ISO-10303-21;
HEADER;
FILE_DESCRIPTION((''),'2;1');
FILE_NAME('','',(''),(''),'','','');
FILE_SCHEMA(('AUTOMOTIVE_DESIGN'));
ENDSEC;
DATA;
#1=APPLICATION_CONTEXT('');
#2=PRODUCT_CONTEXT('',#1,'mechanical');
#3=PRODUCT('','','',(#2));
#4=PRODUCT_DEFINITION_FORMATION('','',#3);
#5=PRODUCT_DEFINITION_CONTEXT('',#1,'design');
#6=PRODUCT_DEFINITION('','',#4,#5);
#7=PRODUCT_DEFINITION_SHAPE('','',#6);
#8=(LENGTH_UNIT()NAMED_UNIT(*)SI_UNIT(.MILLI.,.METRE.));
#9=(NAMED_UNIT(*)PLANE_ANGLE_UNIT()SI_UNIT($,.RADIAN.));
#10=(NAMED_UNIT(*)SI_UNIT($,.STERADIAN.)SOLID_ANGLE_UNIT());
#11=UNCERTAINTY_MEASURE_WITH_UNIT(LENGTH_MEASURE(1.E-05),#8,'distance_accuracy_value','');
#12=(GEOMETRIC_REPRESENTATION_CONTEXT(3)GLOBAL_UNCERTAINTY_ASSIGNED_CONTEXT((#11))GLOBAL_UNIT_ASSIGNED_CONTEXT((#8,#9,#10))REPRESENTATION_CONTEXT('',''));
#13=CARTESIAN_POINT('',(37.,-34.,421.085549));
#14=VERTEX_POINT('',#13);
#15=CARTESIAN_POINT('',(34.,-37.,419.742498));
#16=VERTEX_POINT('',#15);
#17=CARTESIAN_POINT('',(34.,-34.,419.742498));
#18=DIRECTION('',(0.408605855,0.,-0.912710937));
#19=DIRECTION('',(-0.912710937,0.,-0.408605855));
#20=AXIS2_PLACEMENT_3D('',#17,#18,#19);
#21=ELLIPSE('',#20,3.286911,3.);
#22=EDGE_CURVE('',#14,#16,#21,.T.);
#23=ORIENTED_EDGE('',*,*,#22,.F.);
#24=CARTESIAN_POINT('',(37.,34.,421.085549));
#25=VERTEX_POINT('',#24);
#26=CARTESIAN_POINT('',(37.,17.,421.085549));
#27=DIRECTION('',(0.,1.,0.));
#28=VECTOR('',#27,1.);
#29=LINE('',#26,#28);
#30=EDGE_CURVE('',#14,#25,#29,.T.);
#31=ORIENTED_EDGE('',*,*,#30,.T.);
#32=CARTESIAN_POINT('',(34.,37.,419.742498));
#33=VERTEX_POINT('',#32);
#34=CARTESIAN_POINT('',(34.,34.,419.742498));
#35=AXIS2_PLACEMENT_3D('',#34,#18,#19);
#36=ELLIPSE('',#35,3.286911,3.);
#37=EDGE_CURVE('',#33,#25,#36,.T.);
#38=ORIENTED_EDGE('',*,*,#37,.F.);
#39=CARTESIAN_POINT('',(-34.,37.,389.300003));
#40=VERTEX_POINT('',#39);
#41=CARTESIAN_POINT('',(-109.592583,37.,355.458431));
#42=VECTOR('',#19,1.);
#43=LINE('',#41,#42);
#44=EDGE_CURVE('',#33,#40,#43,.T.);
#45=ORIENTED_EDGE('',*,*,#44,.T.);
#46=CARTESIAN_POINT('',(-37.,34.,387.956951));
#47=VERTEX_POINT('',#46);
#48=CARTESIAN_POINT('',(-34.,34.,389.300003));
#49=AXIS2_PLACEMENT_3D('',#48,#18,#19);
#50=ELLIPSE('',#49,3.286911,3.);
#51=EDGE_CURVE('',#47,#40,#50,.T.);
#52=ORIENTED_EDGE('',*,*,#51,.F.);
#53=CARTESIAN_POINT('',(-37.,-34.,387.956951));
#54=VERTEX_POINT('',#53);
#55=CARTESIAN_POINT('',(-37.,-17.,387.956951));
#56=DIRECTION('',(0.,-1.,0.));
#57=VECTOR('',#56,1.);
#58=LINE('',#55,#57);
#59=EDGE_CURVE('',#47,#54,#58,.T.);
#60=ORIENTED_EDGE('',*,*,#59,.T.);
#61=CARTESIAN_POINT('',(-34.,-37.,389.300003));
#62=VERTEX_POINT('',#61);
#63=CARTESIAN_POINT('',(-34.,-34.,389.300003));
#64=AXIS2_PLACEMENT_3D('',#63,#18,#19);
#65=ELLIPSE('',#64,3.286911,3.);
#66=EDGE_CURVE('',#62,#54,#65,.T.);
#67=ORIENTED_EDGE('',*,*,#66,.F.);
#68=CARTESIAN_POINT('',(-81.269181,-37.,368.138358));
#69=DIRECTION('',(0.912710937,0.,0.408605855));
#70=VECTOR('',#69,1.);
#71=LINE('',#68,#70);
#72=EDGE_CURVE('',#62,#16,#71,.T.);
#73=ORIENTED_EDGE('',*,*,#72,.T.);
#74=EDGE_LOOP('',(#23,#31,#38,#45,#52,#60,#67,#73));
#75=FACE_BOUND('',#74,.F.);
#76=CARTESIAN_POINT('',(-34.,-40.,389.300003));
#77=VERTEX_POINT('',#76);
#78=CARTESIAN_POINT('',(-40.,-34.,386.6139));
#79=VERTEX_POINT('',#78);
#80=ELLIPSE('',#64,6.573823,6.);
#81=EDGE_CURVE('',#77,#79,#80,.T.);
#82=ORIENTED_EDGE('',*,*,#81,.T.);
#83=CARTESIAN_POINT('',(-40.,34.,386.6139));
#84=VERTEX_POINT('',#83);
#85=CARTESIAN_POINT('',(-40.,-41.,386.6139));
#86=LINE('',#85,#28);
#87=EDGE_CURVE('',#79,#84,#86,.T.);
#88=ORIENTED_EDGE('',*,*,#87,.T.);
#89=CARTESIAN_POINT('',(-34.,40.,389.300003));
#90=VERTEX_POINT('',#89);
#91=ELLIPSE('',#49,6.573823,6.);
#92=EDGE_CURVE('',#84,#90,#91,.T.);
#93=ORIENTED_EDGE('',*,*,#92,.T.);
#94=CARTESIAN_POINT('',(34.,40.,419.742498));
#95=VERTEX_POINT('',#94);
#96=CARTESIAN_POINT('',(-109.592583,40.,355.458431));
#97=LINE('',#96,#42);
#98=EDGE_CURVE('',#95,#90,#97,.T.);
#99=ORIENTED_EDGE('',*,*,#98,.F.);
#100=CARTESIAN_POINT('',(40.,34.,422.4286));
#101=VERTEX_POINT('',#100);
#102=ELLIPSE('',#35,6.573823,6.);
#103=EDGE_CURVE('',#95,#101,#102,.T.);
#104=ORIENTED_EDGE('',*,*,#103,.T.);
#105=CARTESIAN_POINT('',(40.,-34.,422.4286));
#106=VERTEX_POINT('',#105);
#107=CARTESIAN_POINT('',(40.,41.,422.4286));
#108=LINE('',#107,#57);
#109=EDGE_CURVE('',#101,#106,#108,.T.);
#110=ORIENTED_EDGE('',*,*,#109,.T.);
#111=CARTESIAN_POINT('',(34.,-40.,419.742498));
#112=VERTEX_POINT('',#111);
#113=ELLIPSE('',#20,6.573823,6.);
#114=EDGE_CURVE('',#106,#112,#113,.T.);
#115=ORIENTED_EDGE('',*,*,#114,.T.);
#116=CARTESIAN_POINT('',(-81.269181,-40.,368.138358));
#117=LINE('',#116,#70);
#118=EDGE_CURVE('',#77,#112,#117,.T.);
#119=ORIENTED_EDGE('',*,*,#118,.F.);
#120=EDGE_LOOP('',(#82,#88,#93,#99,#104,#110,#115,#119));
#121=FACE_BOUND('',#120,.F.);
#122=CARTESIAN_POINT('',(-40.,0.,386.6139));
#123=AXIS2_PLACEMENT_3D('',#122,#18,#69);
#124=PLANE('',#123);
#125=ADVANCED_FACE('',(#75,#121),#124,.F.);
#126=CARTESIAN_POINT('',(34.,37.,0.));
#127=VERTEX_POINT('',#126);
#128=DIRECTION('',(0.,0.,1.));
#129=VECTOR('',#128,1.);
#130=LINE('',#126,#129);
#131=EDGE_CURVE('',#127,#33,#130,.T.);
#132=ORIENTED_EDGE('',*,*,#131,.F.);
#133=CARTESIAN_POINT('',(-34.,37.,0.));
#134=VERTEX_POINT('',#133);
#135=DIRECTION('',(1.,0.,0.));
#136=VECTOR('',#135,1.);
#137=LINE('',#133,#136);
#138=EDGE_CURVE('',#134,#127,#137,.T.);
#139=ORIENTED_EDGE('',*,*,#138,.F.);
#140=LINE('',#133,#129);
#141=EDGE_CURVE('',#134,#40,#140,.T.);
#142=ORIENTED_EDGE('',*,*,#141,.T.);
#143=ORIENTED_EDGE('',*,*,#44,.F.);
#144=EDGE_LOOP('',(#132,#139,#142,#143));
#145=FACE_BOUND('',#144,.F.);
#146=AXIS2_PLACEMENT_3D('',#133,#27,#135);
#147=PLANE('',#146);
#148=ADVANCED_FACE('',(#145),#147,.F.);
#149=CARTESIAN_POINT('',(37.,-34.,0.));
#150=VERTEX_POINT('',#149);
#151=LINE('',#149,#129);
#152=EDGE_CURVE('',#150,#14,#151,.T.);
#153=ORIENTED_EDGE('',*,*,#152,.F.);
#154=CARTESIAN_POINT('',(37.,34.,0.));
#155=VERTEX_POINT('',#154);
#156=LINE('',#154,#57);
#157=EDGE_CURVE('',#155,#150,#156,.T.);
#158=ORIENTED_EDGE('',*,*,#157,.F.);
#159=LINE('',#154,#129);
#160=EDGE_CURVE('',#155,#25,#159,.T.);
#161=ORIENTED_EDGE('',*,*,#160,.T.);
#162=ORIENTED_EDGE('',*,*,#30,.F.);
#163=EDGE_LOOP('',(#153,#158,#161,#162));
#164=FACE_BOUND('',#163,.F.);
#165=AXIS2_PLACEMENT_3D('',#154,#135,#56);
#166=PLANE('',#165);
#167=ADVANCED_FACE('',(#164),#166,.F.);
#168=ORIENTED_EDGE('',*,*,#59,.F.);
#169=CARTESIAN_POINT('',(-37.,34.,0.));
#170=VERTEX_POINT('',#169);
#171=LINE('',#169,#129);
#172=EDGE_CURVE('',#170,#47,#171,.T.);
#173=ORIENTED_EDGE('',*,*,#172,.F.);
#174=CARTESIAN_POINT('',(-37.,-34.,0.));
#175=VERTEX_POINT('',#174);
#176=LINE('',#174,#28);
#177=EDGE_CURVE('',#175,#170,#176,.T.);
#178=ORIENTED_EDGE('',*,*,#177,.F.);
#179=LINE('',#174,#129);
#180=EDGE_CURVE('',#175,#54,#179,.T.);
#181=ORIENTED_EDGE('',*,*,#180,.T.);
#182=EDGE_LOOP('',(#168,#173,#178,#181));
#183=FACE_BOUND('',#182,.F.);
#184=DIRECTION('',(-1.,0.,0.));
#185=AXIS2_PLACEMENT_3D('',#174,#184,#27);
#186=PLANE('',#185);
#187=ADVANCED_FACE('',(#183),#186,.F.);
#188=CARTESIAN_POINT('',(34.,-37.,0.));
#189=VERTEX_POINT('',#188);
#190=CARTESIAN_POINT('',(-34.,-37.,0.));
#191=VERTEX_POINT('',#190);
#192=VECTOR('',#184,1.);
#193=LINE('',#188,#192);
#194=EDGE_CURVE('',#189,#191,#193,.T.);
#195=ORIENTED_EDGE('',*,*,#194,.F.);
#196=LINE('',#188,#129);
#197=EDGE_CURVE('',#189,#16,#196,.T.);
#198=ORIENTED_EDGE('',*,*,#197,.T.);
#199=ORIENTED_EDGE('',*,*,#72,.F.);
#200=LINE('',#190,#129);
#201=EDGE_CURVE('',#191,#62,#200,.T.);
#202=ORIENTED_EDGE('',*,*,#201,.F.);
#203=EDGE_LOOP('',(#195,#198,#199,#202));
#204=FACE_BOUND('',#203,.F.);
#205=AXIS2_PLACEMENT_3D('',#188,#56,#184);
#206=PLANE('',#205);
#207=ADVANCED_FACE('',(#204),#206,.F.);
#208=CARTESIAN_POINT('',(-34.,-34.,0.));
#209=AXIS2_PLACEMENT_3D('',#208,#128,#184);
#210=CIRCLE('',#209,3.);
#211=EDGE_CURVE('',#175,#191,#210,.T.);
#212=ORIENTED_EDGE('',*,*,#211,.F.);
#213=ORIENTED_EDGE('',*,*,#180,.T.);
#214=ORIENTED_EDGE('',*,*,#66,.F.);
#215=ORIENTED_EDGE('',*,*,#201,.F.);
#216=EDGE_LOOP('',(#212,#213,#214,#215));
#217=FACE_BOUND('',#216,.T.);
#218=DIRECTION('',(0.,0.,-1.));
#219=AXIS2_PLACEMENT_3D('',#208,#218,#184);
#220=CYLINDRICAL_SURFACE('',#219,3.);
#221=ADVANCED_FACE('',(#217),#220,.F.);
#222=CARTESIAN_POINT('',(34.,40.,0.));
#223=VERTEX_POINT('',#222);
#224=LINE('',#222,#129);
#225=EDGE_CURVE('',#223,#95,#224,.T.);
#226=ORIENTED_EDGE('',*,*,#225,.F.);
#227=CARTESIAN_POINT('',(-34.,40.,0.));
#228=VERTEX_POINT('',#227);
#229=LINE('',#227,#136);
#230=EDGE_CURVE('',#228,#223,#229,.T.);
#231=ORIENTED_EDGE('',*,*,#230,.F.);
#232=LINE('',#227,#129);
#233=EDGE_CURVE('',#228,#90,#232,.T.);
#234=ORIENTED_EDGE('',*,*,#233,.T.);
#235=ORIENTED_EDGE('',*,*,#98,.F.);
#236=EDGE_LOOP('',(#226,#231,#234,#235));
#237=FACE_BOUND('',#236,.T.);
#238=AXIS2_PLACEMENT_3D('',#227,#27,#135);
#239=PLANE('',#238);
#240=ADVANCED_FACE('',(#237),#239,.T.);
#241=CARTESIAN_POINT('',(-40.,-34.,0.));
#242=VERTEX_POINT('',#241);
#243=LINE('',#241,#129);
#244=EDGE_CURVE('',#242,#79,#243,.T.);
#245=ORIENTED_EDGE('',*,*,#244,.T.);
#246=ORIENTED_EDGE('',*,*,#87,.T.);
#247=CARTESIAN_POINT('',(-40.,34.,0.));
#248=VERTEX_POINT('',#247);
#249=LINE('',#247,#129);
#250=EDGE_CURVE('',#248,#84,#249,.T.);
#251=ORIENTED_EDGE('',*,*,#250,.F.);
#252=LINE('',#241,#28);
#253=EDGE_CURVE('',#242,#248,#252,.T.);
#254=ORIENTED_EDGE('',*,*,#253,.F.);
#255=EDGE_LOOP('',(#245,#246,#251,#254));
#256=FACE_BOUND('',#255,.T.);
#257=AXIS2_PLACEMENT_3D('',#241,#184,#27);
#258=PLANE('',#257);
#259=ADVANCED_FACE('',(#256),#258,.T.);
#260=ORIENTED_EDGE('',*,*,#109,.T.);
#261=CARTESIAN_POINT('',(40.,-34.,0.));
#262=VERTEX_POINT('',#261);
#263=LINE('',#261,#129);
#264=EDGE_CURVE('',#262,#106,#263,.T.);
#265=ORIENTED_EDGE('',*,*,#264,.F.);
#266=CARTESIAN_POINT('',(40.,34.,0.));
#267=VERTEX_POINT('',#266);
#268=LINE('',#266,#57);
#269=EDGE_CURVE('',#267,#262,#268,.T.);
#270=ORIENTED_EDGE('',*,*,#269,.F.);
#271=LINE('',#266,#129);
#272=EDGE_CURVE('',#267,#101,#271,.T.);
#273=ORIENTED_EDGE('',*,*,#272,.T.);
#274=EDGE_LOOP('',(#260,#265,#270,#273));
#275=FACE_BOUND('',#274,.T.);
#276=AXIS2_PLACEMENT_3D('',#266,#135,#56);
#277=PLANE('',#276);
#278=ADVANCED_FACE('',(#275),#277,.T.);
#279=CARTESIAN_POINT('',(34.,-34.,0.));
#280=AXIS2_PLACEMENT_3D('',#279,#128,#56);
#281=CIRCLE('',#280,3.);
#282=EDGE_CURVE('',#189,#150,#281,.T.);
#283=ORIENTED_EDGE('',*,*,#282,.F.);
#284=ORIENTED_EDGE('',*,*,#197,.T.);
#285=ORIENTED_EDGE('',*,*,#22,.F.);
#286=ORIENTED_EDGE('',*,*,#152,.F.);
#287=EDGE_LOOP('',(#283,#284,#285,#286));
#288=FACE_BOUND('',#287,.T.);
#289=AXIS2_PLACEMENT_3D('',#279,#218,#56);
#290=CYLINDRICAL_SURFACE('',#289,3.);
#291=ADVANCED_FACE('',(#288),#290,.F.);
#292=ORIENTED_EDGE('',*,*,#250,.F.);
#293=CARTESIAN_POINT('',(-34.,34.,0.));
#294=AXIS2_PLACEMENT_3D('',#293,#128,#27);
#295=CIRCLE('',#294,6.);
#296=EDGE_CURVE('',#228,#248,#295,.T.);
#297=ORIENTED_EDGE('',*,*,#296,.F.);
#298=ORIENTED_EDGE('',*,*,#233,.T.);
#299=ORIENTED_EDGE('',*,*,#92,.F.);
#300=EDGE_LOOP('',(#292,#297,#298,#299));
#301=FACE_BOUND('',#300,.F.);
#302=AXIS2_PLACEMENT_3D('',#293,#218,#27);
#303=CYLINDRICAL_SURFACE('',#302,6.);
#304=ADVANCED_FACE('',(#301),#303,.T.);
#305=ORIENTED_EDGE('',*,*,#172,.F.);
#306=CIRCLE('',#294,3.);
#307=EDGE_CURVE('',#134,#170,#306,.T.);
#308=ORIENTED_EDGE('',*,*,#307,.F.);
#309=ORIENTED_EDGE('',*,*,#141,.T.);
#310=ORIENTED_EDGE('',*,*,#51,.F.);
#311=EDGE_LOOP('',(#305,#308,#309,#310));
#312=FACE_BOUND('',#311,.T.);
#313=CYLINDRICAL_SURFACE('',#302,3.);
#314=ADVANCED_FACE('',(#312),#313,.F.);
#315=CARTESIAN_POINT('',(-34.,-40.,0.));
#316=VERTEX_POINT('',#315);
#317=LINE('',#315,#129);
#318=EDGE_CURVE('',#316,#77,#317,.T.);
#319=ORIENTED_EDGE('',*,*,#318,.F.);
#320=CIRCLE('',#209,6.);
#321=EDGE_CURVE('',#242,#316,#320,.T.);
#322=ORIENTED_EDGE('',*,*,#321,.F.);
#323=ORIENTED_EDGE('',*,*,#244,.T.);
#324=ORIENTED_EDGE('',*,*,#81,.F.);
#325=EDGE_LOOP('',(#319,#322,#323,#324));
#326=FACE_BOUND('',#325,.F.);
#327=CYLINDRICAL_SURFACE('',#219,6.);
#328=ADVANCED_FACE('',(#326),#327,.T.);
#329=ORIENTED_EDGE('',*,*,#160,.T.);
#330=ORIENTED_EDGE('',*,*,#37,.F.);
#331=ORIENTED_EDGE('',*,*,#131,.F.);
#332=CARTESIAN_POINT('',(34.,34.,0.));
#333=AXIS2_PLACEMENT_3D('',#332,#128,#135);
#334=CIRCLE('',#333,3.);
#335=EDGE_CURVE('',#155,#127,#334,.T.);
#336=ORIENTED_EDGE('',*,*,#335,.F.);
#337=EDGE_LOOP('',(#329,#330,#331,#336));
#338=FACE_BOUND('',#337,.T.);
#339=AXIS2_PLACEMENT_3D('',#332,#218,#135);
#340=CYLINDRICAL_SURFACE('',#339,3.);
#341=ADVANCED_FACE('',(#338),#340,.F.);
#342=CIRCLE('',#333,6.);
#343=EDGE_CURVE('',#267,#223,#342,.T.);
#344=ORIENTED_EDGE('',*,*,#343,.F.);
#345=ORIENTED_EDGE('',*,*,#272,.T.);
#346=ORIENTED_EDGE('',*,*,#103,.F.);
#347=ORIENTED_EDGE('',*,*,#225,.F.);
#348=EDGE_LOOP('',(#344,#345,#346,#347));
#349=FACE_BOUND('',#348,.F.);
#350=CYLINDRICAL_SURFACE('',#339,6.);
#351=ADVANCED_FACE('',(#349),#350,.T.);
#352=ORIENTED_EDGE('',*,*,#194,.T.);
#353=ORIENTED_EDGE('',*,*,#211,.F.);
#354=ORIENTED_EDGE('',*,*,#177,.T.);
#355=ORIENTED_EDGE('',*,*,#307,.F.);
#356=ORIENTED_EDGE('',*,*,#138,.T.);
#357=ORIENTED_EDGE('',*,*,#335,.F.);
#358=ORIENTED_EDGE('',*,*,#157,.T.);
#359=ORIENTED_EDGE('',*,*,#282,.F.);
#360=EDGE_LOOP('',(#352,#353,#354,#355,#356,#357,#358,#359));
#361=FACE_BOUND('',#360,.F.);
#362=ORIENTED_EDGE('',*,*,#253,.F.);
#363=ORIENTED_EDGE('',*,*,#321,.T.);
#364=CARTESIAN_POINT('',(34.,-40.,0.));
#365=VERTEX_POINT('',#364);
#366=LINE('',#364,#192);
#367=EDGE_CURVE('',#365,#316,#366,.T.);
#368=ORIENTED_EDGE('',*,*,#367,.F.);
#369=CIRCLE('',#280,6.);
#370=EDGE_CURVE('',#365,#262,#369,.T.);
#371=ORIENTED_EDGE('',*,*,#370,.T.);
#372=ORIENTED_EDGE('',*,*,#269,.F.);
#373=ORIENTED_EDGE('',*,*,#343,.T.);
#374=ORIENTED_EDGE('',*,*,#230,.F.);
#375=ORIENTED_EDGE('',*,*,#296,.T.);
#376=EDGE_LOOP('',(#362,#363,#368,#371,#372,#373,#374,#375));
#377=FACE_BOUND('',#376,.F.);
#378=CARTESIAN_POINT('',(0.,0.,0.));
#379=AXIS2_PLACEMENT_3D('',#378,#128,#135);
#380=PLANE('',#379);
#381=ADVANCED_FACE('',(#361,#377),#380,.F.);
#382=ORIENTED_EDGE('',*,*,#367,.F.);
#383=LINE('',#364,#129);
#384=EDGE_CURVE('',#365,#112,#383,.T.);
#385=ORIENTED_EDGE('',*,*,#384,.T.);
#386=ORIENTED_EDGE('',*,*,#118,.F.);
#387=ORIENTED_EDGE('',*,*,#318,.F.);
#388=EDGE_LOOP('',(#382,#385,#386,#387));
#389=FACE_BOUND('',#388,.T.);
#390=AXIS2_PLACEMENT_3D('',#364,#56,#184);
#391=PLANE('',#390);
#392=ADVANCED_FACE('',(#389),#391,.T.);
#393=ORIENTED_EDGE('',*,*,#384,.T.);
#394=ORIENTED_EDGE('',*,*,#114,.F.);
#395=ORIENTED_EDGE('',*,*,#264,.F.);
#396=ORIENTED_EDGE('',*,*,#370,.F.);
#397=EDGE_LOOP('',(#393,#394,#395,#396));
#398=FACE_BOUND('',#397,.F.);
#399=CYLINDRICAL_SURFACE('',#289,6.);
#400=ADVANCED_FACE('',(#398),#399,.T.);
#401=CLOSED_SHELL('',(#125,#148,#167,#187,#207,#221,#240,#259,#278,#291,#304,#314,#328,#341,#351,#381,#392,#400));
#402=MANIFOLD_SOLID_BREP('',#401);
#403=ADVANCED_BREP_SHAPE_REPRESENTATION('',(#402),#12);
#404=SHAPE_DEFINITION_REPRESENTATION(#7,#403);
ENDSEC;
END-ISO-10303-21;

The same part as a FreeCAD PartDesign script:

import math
import FreeCAD as App
import Part
import Sketcher
from FreeCAD import Vector


def add_polygon(sketch, points):
    """Adds a closed chain of lines whose ends are joined by coincident constraints."""
    first, n = sketch.GeometryCount, len(points)
    for a, b in zip(points, points[1:] + points[:1]):
        sketch.addGeometry(Part.LineSegment(App.Vector(*a, 0), App.Vector(*b, 0)), False)
    for i in range(n):
        sketch.addConstraint(Sketcher.Constraint("Coincident", first + i, 2, first + (i + 1) % n, 1))

doc = App.newDocument("Part")
body = doc.addObject("PartDesign::Body", "Body")

# Sketch on XY plane
sketch1 = body.newObject("Sketcher::SketchObject", "Sketch")
sketch1.AttachmentSupport = (doc.getObject("XY_Plane"), [""])
sketch1.MapMode = "FlatFace"
sketch1.addGeometry(Part.LineSegment(Vector(-40, 34, 0), Vector(-40, -34, 0)), False)
sketch1.addGeometry(Part.ArcOfCircle(Part.Circle(Vector(-34, -34, 0), Vector(0, 0, 1), 6), math.radians(180), math.radians(270)), False)
sketch1.addGeometry(Part.LineSegment(Vector(-34, -40, 0), Vector(34, -40, 0)), False)
sketch1.addGeometry(Part.ArcOfCircle(Part.Circle(Vector(34, -34, 0), Vector(0, 0, 1), 6), math.radians(-90), math.radians(0)), False)
sketch1.addGeometry(Part.LineSegment(Vector(40, -34, 0), Vector(40, 34, 0)), False)
sketch1.addGeometry(Part.ArcOfCircle(Part.Circle(Vector(34, 34, 0), Vector(0, 0, 1), 6), math.radians(0), math.radians(90)), False)
sketch1.addGeometry(Part.LineSegment(Vector(34, 40, 0), Vector(-34, 40, 0)), False)
sketch1.addGeometry(Part.ArcOfCircle(Part.Circle(Vector(-34, 34, 0), Vector(0, 0, 1), 6), math.radians(90), math.radians(180)), False)
sketch1.addGeometry(Part.ArcOfCircle(Part.Circle(Vector(-34, 34, 0), Vector(0, 0, 1), 3), math.radians(90), math.radians(180)), False)
sketch1.addGeometry(Part.LineSegment(Vector(-34, 37, 0), Vector(34, 37, 0)), False)
sketch1.addGeometry(Part.ArcOfCircle(Part.Circle(Vector(34, 34, 0), Vector(0, 0, 1), 3), math.radians(0), math.radians(90)), False)
sketch1.addGeometry(Part.LineSegment(Vector(37, 34, 0), Vector(37, -34, 0)), False)
sketch1.addGeometry(Part.ArcOfCircle(Part.Circle(Vector(34, -34, 0), Vector(0, 0, 1), 3), math.radians(-90), math.radians(0)), False)
sketch1.addGeometry(Part.LineSegment(Vector(34, -37, 0), Vector(-34, -37, 0)), False)
sketch1.addGeometry(Part.ArcOfCircle(Part.Circle(Vector(-34, -34, 0), Vector(0, 0, 1), 3), math.radians(180), math.radians(270)), False)
sketch1.addGeometry(Part.LineSegment(Vector(-37, -34, 0), Vector(-37, 34, 0)), False)
sketch1.addConstraint(Sketcher.Constraint("Tangent", 0, 2, 1, 1))
sketch1.addConstraint(Sketcher.Constraint("Tangent", 1, 2, 2, 1))
sketch1.addConstraint(Sketcher.Constraint("Tangent", 2, 2, 3, 1))
sketch1.addConstraint(Sketcher.Constraint("Tangent", 3, 2, 4, 1))
sketch1.addConstraint(Sketcher.Constraint("Tangent", 4, 2, 5, 1))
sketch1.addConstraint(Sketcher.Constraint("Tangent", 5, 2, 6, 1))
sketch1.addConstraint(Sketcher.Constraint("Tangent", 6, 2, 7, 1))
sketch1.addConstraint(Sketcher.Constraint("Tangent", 7, 2, 0, 1))
sketch1.addConstraint(Sketcher.Constraint("Tangent", 8, 1, 9, 1))
sketch1.addConstraint(Sketcher.Constraint("Tangent", 9, 2, 10, 2))
sketch1.addConstraint(Sketcher.Constraint("Tangent", 10, 1, 11, 1))
sketch1.addConstraint(Sketcher.Constraint("Tangent", 11, 2, 12, 2))
sketch1.addConstraint(Sketcher.Constraint("Tangent", 12, 1, 13, 1))
sketch1.addConstraint(Sketcher.Constraint("Tangent", 13, 2, 14, 2))
sketch1.addConstraint(Sketcher.Constraint("Tangent", 14, 1, 15, 1))
sketch1.addConstraint(Sketcher.Constraint("Tangent", 15, 2, 8, 2))
sketch1.addConstraint(Sketcher.Constraint("Vertical", 0))
sketch1.addConstraint(Sketcher.Constraint("Horizontal", 2))
sketch1.addConstraint(Sketcher.Constraint("Vertical", 4))
sketch1.addConstraint(Sketcher.Constraint("Horizontal", 6))
sketch1.addConstraint(Sketcher.Constraint("Horizontal", 9))
sketch1.addConstraint(Sketcher.Constraint("Vertical", 11))
sketch1.addConstraint(Sketcher.Constraint("Horizontal", 13))
sketch1.addConstraint(Sketcher.Constraint("Vertical", 15))
sketch1.addConstraint(Sketcher.Constraint("Coincident", 8, 3, 7, 3))
sketch1.addConstraint(Sketcher.Constraint("Coincident", 10, 3, 5, 3))
sketch1.addConstraint(Sketcher.Constraint("Coincident", 12, 3, 3, 3))
sketch1.addConstraint(Sketcher.Constraint("Equal", 1, 3))
sketch1.addConstraint(Sketcher.Constraint("Equal", 3, 5))
sketch1.addConstraint(Sketcher.Constraint("Equal", 5, 7))
sketch1.addConstraint(Sketcher.Constraint("Equal", 12, 14))
sketch1.addConstraint(Sketcher.Constraint("Symmetric", 1, 3, 5, 3, -1, 1))
sketch1.addConstraint(Sketcher.Constraint("Equal", 13, 0))
sketch1.addConstraint(Sketcher.Constraint("Radius", 1, 6.0))
sketch1.addConstraint(Sketcher.Constraint("Radius", 8, 3.0))
sketch1.addConstraint(Sketcher.Constraint("DistanceX", 0, 2, -1, 1, 40.0))
pad1 = body.newObject("PartDesign::Pad", "Pad")
pad1.Profile = sketch1
pad1.Length = 1000

# Sketch on XZ plane
sketch2 = body.newObject("Sketcher::SketchObject", "Sketch001")
sketch2.AttachmentSupport = (doc.getObject("XZ_Plane"), [""])
sketch2.MapMode = "FlatFace"
add_polygon(sketch2, [(40, 422), (-40, 387), (-40, 1000), (40, 1000)])  # lines 0-3
sketch2.addConstraint(Sketcher.Constraint("Vertical", 1))
sketch2.addConstraint(Sketcher.Constraint("Horizontal", 2))
sketch2.addConstraint(Sketcher.Constraint("Vertical", 3))
sketch2.addConstraint(Sketcher.Constraint("DistanceX", 2, 1, 2, 2, 80.0))
sketch2.addConstraint(Sketcher.Constraint("DistanceX", 0, 2, -1, 1, 40.0))
sketch2.addConstraint(Sketcher.Constraint("DistanceY", -1, 1, 1, 2, 1000.0))
sketch2.addConstraint(Sketcher.Constraint("DistanceY", 1, 1, 1, 2, 613.386))
sketch2.addConstraint(Sketcher.Constraint("Distance", 0, 87.651))
pocket1 = body.newObject("PartDesign::Pocket", "Pocket")
pocket1.Profile = sketch2
pocket1.Type = "ThroughAll"
pocket1.Midplane = True

doc.recompute()
